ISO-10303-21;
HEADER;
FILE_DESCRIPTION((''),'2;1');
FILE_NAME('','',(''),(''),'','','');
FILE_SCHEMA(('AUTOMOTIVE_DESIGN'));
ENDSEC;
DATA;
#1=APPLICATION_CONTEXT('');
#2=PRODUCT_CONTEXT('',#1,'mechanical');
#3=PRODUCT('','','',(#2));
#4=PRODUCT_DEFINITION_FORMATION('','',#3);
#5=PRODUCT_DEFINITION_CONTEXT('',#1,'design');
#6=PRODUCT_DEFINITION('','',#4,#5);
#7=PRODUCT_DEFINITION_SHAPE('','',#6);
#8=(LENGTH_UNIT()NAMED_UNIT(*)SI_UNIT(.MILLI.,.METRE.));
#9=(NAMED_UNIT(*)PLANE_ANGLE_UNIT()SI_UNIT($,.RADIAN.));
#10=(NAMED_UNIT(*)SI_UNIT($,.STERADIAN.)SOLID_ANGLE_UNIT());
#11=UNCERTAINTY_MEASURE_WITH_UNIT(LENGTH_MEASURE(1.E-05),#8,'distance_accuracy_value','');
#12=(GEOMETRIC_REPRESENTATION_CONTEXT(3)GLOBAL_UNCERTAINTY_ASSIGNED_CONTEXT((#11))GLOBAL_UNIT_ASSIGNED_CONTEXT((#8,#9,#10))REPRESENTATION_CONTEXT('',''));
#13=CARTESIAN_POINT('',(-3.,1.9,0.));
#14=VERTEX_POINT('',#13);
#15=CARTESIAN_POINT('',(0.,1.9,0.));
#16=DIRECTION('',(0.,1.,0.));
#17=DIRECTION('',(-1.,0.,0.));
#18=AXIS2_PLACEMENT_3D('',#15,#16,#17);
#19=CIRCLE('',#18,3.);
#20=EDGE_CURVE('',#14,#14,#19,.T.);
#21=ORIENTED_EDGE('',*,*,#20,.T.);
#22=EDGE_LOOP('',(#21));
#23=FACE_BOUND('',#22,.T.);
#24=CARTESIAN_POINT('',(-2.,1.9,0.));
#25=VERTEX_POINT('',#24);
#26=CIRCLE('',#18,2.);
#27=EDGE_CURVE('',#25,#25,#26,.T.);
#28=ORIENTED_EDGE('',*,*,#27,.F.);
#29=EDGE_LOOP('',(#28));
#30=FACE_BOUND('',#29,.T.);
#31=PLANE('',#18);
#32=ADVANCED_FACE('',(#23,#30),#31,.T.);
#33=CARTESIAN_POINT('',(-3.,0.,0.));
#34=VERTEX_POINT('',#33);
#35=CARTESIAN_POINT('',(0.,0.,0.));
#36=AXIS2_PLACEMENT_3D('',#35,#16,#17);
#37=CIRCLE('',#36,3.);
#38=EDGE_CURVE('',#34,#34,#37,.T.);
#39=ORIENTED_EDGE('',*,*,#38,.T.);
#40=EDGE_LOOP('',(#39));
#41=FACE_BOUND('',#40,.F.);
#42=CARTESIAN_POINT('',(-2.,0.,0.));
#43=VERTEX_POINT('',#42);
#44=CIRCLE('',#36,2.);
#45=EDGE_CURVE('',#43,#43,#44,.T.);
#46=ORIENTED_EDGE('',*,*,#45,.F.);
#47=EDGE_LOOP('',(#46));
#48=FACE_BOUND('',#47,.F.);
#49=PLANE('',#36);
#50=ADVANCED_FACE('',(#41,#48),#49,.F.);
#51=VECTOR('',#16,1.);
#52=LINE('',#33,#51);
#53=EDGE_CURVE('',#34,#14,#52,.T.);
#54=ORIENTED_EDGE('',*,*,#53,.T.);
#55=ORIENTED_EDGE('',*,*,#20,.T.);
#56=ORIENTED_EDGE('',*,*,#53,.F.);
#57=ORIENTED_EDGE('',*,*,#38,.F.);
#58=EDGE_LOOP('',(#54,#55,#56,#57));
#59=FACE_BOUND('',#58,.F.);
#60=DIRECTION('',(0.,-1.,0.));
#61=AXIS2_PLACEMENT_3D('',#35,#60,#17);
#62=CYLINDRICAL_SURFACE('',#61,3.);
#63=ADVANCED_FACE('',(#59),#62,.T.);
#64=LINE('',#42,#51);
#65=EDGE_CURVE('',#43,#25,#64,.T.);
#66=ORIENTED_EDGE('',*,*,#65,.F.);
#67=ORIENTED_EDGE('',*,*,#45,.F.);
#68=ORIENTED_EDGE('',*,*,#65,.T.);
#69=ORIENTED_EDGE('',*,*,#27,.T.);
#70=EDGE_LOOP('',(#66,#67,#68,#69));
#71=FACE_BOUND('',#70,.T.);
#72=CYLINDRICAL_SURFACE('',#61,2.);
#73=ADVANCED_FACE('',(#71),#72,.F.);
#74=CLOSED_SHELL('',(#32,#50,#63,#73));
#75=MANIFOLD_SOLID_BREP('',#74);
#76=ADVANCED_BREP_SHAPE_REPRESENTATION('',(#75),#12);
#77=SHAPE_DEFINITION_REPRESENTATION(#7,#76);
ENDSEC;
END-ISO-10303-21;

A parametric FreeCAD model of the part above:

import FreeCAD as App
import Part
import Sketcher
from FreeCAD import Vector

doc = App.newDocument("Part")
body = doc.addObject("PartDesign::Body", "Body")

sketch1 = body.newObject("Sketcher::SketchObject", "Sketch")
sketch1.AttachmentSupport = (doc.getObject("XZ_Plane"), [""])
sketch1.MapMode = "FlatFace"
sketch1.addGeometry([
    Part.Circle(Vector(0, 0, 0), Vector(0, 0, 1), 3),
    Part.Circle(Vector(0, 0, 0), Vector(0, 0, 1), 2),
], False)
sketch1.addConstraint([
    Sketcher.Constraint("Coincident", 0, 3, -1, 1),
    Sketcher.Constraint("Coincident", 1, 3, -1, 1),
    Sketcher.Constraint("Diameter", 0, 6.0),
    Sketcher.Constraint("Diameter", 1, 4.0),
])
pad1 = body.newObject("PartDesign::Pad", "Pad")
pad1.Profile = sketch1
pad1.Length = 1.9
pad1.Reversed = True

doc.recompute()
